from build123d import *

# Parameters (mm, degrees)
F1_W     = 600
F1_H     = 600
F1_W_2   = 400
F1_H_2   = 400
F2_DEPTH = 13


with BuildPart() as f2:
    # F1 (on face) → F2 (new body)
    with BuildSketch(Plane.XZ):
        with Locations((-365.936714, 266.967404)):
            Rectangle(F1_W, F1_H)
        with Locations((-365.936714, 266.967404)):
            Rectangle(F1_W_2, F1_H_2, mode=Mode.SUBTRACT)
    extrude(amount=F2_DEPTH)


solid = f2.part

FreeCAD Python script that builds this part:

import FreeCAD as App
import Part
import Sketcher
Q = App.Units.Quantity


def add_polygon(sketch, points):
    """Adds a closed chain of lines whose ends are joined by coincident constraints."""
    first, n = sketch.GeometryCount, len(points)
    for a, b in zip(points, points[1:] + points[:1]):
        sketch.addGeometry(Part.LineSegment(App.Vector(*a, 0), App.Vector(*b, 0)), False)
    for i in range(n):
        sketch.addConstraint(Sketcher.Constraint("Coincident", first + i, 2, first + (i + 1) % n, 1))

doc = App.newDocument("Part")
body = doc.addObject("PartDesign::Body", "Body")

sketch1 = body.newObject("Sketcher::SketchObject", "Sketch")
sketch1.AttachmentSupport = (doc.getObject("XZ_Plane"), [""])
sketch1.MapMode = "FlatFace"
add_polygon(sketch1, [(-665.936714, 566.967404), (-665.936714, -33.032596), (-65.936714, -33.032596), (-65.936714, 566.967404)])
add_polygon(sketch1, [(-165.936714, 66.967404), (-565.936714, 66.967404), (-565.936714, 466.967404), (-165.936714, 466.967404)])
sketch1.addConstraint(Sketcher.Constraint("Vertical", 0))
sketch1.addConstraint(Sketcher.Constraint("Horizontal", 1))
sketch1.addConstraint(Sketcher.Constraint("Vertical", 2))
sketch1.addConstraint(Sketcher.Constraint("Horizontal", 3))
sketch1.addConstraint(Sketcher.Constraint("Horizontal", 4))
sketch1.addConstraint(Sketcher.Constraint("Vertical", 5))
sketch1.addConstraint(Sketcher.Constraint("Horizontal", 6))
sketch1.addConstraint(Sketcher.Constraint("Vertical", 7))
sketch1.addConstraint(Sketcher.Constraint("Equal", 3, 0))
sketch1.addConstraint(Sketcher.Constraint("Equal", 6, 5))
sketch1.addConstraint(Sketcher.Constraint("DistanceX", 1, 1, 1, 2, Q("600 mm")))
sketch1.addConstraint(Sketcher.Constraint("DistanceX", 4, 2, 4, 1, Q("400 mm")))
sketch1.addConstraint(Sketcher.Constraint("DistanceX", 0, 2, 4, 2, Q("100 mm")))
sketch1.addConstraint(Sketcher.Constraint("DistanceY", 0, 2, 4, 2, Q("100 mm")))
sketch1.addConstraint(Sketcher.Constraint("DistanceX", 0, 2, -1, 1, Q("665.936714 mm")))
sketch1.addConstraint(Sketcher.Constraint("DistanceY", 0, 2, -1, 1, Q("33.032596 mm")))
pad1 = body.newObject("PartDesign::Pad", "Pad")
pad1.Profile = sketch1
pad1.Length = 13

doc.recompute()
